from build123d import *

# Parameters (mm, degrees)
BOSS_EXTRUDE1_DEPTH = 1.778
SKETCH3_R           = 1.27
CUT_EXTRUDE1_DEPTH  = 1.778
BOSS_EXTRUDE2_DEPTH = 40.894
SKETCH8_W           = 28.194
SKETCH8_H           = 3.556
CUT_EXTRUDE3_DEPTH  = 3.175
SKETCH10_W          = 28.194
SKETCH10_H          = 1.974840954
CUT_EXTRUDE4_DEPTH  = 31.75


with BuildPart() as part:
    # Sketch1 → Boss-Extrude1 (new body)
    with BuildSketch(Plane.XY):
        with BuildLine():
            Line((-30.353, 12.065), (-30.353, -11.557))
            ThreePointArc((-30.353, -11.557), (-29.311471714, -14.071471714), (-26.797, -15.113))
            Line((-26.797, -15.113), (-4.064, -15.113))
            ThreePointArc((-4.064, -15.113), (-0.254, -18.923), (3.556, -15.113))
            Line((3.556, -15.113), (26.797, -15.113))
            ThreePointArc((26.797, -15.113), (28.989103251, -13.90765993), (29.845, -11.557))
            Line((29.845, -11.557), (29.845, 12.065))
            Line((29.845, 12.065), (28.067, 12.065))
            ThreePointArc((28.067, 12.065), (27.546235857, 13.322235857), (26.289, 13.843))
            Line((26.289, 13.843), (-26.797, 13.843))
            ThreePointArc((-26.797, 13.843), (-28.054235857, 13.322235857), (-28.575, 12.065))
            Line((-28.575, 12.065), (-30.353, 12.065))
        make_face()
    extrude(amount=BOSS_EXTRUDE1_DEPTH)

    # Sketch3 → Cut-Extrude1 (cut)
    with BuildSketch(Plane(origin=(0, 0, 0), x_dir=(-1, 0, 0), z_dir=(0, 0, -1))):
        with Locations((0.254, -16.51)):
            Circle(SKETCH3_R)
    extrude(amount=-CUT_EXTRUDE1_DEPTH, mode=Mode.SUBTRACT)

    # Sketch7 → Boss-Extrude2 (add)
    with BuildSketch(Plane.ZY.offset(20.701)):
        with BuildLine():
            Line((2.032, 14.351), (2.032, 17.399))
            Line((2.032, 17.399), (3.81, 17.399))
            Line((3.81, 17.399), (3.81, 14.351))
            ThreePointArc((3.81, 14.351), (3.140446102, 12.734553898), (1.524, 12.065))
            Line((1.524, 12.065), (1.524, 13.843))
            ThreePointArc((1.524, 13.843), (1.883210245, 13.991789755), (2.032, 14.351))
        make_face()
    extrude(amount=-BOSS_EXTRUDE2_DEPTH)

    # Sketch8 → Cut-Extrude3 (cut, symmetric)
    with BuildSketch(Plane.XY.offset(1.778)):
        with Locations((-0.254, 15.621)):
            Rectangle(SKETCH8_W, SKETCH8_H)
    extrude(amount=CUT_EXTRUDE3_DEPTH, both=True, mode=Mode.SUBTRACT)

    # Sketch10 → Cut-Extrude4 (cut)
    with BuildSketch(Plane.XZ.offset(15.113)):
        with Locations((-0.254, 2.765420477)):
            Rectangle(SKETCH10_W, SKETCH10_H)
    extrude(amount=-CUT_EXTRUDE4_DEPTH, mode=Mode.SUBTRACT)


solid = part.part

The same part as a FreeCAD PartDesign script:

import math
import FreeCAD as App
import Part
import Sketcher
from FreeCAD import Vector
Q = App.Units.Quantity


def add_polygon(sketch, points):
    """Adds a closed chain of lines whose ends are joined by coincident constraints."""
    first, n = sketch.GeometryCount, len(points)
    for a, b in zip(points, points[1:] + points[:1]):
        sketch.addGeometry(Part.LineSegment(App.Vector(*a, 0), App.Vector(*b, 0)), False)
    for i in range(n):
        sketch.addConstraint(Sketcher.Constraint("Coincident", first + i, 2, first + (i + 1) % n, 1))

doc = App.newDocument("Part")
body = doc.addObject("PartDesign::Body", "Body")

# Sketch on XY plane
sketch1 = body.newObject("Sketcher::SketchObject", "Sketch")
sketch1.AttachmentSupport = (doc.getObject("XY_Plane"), [""])
sketch1.MapMode = "FlatFace"
sketch1.addGeometry(Part.LineSegment(Vector(-30.353, 12.065, 0), Vector(-30.353, -11.557, 0)), False)
sketch1.addGeometry(Part.ArcOfCircle(Part.Circle(Vector(-26.797, -11.557, 0), Vector(0, 0, 1), 3.556), math.radians(180), math.radians(270)), False)
sketch1.addGeometry(Part.LineSegment(Vector(-26.797, -15.113, 0), Vector(-4.064, -15.113, 0)), False)
sketch1.addGeometry(Part.ArcOfCircle(Part.Circle(Vector(-0.254, -15.113, 0), Vector(0, 0, 1), 3.81), math.radians(180), math.radians(360)), False)
sketch1.addGeometry(Part.LineSegment(Vector(3.556, -15.113, 0), Vector(26.797, -15.113, 0)), False)
sketch1.addGeometry(Part.ArcOfCircle(Part.Circle(Vector(26.289187, -11.593446, 0), Vector(0, 0, 1), 3.556), math.radians(-81.78983), math.radians(0.587241)), False)
sketch1.addGeometry(Part.LineSegment(Vector(29.845, -11.557, 0), Vector(29.845, 12.065, 0)), False)
sketch1.addGeometry(Part.LineSegment(Vector(29.845, 12.065, 0), Vector(28.067, 12.065, 0)), False)
sketch1.addGeometry(Part.ArcOfCircle(Part.Circle(Vector(26.289, 12.065, 0), Vector(0, 0, 1), 1.778), math.radians(0), math.radians(90)), False)
sketch1.addGeometry(Part.LineSegment(Vector(26.289, 13.843, 0), Vector(-26.797, 13.843, 0)), False)
sketch1.addGeometry(Part.ArcOfCircle(Part.Circle(Vector(-26.797, 12.065, 0), Vector(0, 0, 1), 1.778), math.radians(90), math.radians(180)), False)
sketch1.addGeometry(Part.LineSegment(Vector(-28.575, 12.065, 0), Vector(-30.353, 12.065, 0)), False)
sketch1.addConstraint(Sketcher.Constraint("Tangent", 0, 2, 1, 1))
sketch1.addConstraint(Sketcher.Constraint("Tangent", 1, 2, 2, 1))
sketch1.addConstraint(Sketcher.Constraint("Coincident", 2, 2, 3, 1))
sketch1.addConstraint(Sketcher.Constraint("Coincident", 3, 2, 4, 1))
sketch1.addConstraint(Sketcher.Constraint("Coincident", 4, 2, 5, 1))
sketch1.addConstraint(Sketcher.Constraint("Coincident", 5, 2, 6, 1))
sketch1.addConstraint(Sketcher.Constraint("Coincident", 6, 2, 7, 1))
sketch1.addConstraint(Sketcher.Constraint("Coincident", 7, 2, 8, 1))
sketch1.addConstraint(Sketcher.Constraint("Tangent", 8, 2, 9, 1))
sketch1.addConstraint(Sketcher.Constraint("Tangent", 9, 2, 10, 1))
sketch1.addConstraint(Sketcher.Constraint("Coincident", 10, 2, 11, 1))
sketch1.addConstraint(Sketcher.Constraint("Coincident", 11, 2, 0, 1))
sketch1.addConstraint(Sketcher.Constraint("Vertical", 0))
sketch1.addConstraint(Sketcher.Constraint("Horizontal", 2))
sketch1.addConstraint(Sketcher.Constraint("Horizontal", 4))
sketch1.addConstraint(Sketcher.Constraint("Vertical", 6))
sketch1.addConstraint(Sketcher.Constraint("Horizontal", 7))
sketch1.addConstraint(Sketcher.Constraint("Horizontal", 9))
sketch1.addConstraint(Sketcher.Constraint("Horizontal", 11))
sketch1.addConstraint(Sketcher.Constraint("Equal", 1, 5))
sketch1.addConstraint(Sketcher.Constraint("Equal", 8, 10))
sketch1.addConstraint(Sketcher.Constraint("Symmetric", 1, 2, 4, 2, -2))
sketch1.addConstraint(Sketcher.Constraint("Horizontal", 3, 3, 1, 2))
sketch1.addConstraint(Sketcher.Constraint("Horizontal", 0, 2, 5, 2))
sketch1.addConstraint(Sketcher.Constraint("Horizontal", 10, 3, 6, 2))
sketch1.addConstraint(Sketcher.Constraint("Horizontal", 7, 2, 10, 2))
sketch1.addConstraint(Sketcher.Constraint("Vertical", 1, 3, 10, 3))
sketch1.addConstraint(Sketcher.Constraint("Equal", 7, 11))
sketch1.addConstraint(Sketcher.Constraint("Radius", 1, Q("0.14 in")))
sketch1.addConstraint(Sketcher.Constraint("Radius", 3, Q("0.15 in")))
sketch1.addConstraint(Sketcher.Constraint("Radius", 8, Q("0.07 in")))
sketch1.addConstraint(Sketcher.Constraint("DistanceY", 5, 2, 8, 2, Q("1 in")))
sketch1.addConstraint(Sketcher.Constraint("DistanceX", 9, 2, 9, 1, Q("2.09 in")))
sketch1.addConstraint(Sketcher.Constraint("DistanceX", 2, 1, 2, 2, Q("0.895 in")))
sketch1.addConstraint(Sketcher.Constraint("DistanceX", 4, 1, 4, 2, Q("0.915 in")))
sketch1.addConstraint(Sketcher.Constraint("DistanceY", 1, 3, -1, 1, Q("0.455 in")))
pad1 = body.newObject("PartDesign::Pad", "Pad")
pad1.Profile = sketch1
pad1.Length = Q("0.07 in")

# Sketch on XY plane
sketch2 = body.newObject("Sketcher::SketchObject", "Sketch001")
sketch2.AttachmentSupport = (doc.getObject("XY_Plane"), [""])
sketch2.MapMode = "FlatFace"
sketch2.addGeometry(Part.Circle(Vector(-0.254, -16.51, 0), Vector(0, 0, 1), 1.27), False)
sketch2.addConstraint(Sketcher.Constraint("Diameter", 0, Q("0.1 in")))
sketch2.addConstraint(Sketcher.Constraint("DistanceX", 0, 3, -1, 1, Q("0.01 in")))
sketch2.addConstraint(Sketcher.Constraint("DistanceY", 0, 3, -1, 1, Q("0.65 in")))
pocket1 = body.newObject("PartDesign::Pocket", "Pocket")
pocket1.Profile = sketch2
pocket1.Length = Q("0.07 in")
pocket1.Reversed = True

# Sketch on YZ plane
sketch3 = body.newObject("Sketcher::SketchObject", "Sketch002")
sketch3.AttachmentSupport = (doc.getObject("YZ_Plane"), [""])
sketch3.MapMode = "FlatFace"
sketch3.AttachmentOffset = App.Placement(Vector(0, 0, -0.815 * 25.4), App.Rotation())
sketch3.addGeometry(Part.LineSegment(Vector(17.399, 2.032, 0), Vector(14.351, 2.032, 0)), False)
sketch3.addGeometry(Part.ArcOfCircle(Part.Circle(Vector(14.351, 1.524, 0), Vector(0, 0, 1), 0.508), math.radians(90), math.radians(180)), False)
sketch3.addGeometry(Part.LineSegment(Vector(13.843, 1.524, 0), Vector(12.065, 1.524, 0)), False)
sketch3.addGeometry(Part.ArcOfCircle(Part.Circle(Vector(14.351, 1.524, 0), Vector(0, 0, 1), 2.286), math.radians(90), math.radians(180)), False)
sketch3.addGeometry(Part.LineSegment(Vector(14.351, 3.81, 0), Vector(17.399, 3.81, 0)), False)
sketch3.addGeometry(Part.LineSegment(Vector(17.399, 3.81, 0), Vector(17.399, 2.032, 0)), False)
sketch3.addConstraint(Sketcher.Constraint("Tangent", 0, 2, 1, 1))
sketch3.addConstraint(Sketcher.Constraint("Coincident", 1, 2, 2, 1))
sketch3.addConstraint(Sketcher.Constraint("Coincident", 2, 2, 3, 2))
sketch3.addConstraint(Sketcher.Constraint("Tangent", 3, 1, 4, 1))
sketch3.addConstraint(Sketcher.Constraint("Coincident", 4, 2, 5, 1))
sketch3.addConstraint(Sketcher.Constraint("Coincident", 5, 2, 0, 1))
sketch3.addConstraint(Sketcher.Constraint("Horizontal", 0))
sketch3.addConstraint(Sketcher.Constraint("Horizontal", 2))
sketch3.addConstraint(Sketcher.Constraint("Horizontal", 4))
sketch3.addConstraint(Sketcher.Constraint("Vertical", 5))
sketch3.addConstraint(Sketcher.Constraint("Coincident", 3, 3, 1, 3))
sketch3.addConstraint(Sketcher.Constraint("Horizontal", 3, 3, 1, 2))
sketch3.addConstraint(Sketcher.Constraint("Radius", 1, Q("0.02 in")))
sketch3.addConstraint(Sketcher.Constraint("Radius", 3, Q("0.09 in")))
sketch3.addConstraint(Sketcher.Constraint("DistanceX", 0, 2, 0, 1, Q("0.12 in")))
sketch3.addConstraint(Sketcher.Constraint("DistanceY", -1, 1, 1, 3, Q("0.06 in")))
sketch3.addConstraint(Sketcher.Constraint("DistanceX", -1, 1, 1, 3, Q("0.565 in")))
pad2 = body.newObject("PartDesign::Pad", "Pad001")
pad2.Profile = sketch3
pad2.Length = Q("1.61 in")

# Sketch on XY plane
sketch4 = body.newObject("Sketcher::SketchObject", "Sketch003")
sketch4.AttachmentSupport = (doc.getObject("XY_Plane"), [""])
sketch4.MapMode = "FlatFace"
sketch4.AttachmentOffset = App.Placement(Vector(0, 0, 0.07 * 25.4), App.Rotation())
add_polygon(sketch4, [(-14.351, 17.399), (-14.351, 13.843), (13.843, 13.843), (13.843, 17.399)])  # lines 0-3
sketch4.addConstraint(Sketcher.Constraint("Vertical", 0))
sketch4.addConstraint(Sketcher.Constraint("Horizontal", 1))
sketch4.addConstraint(Sketcher.Constraint("Vertical", 2))
sketch4.addConstraint(Sketcher.Constraint("Horizontal", 3))
sketch4.addConstraint(Sketcher.Constraint("DistanceX", 1, 1, 1, 2, Q("1.11 in")))
sketch4.addConstraint(Sketcher.Constraint("DistanceY", 0, 2, 0, 1, Q("0.14 in")))
sketch4.addConstraint(Sketcher.Constraint("DistanceX", 0, 2, -1, 1, Q("0.565 in")))
sketch4.addConstraint(Sketcher.Constraint("DistanceY", -1, 1, 0, 2, Q("0.545 in")))
pocket2 = body.newObject("PartDesign::Pocket", "Pocket001")
pocket2.Profile = sketch4
pocket2.Length = Q("0.25 in")
pocket2.Midplane = True

# Sketch on XZ plane
sketch5 = body.newObject("Sketcher::SketchObject", "Sketch004")
sketch5.AttachmentSupport = (doc.getObject("XZ_Plane"), [""])
sketch5.MapMode = "FlatFace"
sketch5.AttachmentOffset = App.Placement(Vector(0, 0, 0.595 * 25.4), App.Rotation())
add_polygon(sketch5, [(-14.351, 3.752841), (-14.351, 1.778), (13.843, 1.778), (13.843, 3.752841)])  # lines 0-3
sketch5.addConstraint(Sketcher.Constraint("Vertical", 0))
sketch5.addConstraint(Sketcher.Constraint("Horizontal", 1))
sketch5.addConstraint(Sketcher.Constraint("Vertical", 2))
sketch5.addConstraint(Sketcher.Constraint("Horizontal", 3))
sketch5.addConstraint(Sketcher.Constraint("DistanceX", 1, 1, 1, 2, Q("1.11 in")))
sketch5.addConstraint(Sketcher.Constraint("DistanceY", -1, 1, 0, 2, Q("0.07 in")))
sketch5.addConstraint(Sketcher.Constraint("DistanceX", 0, 2, -1, 1, Q("0.565 in")))
sketch5.addConstraint(Sketcher.Constraint("DistanceY", 0, 2, 0, 1, Q("1.974841 mm")))
pocket3 = body.newObject("PartDesign::Pocket", "Pocket002")
pocket3.Profile = sketch5
pocket3.Length = Q("1.25 in")

doc.recompute()
